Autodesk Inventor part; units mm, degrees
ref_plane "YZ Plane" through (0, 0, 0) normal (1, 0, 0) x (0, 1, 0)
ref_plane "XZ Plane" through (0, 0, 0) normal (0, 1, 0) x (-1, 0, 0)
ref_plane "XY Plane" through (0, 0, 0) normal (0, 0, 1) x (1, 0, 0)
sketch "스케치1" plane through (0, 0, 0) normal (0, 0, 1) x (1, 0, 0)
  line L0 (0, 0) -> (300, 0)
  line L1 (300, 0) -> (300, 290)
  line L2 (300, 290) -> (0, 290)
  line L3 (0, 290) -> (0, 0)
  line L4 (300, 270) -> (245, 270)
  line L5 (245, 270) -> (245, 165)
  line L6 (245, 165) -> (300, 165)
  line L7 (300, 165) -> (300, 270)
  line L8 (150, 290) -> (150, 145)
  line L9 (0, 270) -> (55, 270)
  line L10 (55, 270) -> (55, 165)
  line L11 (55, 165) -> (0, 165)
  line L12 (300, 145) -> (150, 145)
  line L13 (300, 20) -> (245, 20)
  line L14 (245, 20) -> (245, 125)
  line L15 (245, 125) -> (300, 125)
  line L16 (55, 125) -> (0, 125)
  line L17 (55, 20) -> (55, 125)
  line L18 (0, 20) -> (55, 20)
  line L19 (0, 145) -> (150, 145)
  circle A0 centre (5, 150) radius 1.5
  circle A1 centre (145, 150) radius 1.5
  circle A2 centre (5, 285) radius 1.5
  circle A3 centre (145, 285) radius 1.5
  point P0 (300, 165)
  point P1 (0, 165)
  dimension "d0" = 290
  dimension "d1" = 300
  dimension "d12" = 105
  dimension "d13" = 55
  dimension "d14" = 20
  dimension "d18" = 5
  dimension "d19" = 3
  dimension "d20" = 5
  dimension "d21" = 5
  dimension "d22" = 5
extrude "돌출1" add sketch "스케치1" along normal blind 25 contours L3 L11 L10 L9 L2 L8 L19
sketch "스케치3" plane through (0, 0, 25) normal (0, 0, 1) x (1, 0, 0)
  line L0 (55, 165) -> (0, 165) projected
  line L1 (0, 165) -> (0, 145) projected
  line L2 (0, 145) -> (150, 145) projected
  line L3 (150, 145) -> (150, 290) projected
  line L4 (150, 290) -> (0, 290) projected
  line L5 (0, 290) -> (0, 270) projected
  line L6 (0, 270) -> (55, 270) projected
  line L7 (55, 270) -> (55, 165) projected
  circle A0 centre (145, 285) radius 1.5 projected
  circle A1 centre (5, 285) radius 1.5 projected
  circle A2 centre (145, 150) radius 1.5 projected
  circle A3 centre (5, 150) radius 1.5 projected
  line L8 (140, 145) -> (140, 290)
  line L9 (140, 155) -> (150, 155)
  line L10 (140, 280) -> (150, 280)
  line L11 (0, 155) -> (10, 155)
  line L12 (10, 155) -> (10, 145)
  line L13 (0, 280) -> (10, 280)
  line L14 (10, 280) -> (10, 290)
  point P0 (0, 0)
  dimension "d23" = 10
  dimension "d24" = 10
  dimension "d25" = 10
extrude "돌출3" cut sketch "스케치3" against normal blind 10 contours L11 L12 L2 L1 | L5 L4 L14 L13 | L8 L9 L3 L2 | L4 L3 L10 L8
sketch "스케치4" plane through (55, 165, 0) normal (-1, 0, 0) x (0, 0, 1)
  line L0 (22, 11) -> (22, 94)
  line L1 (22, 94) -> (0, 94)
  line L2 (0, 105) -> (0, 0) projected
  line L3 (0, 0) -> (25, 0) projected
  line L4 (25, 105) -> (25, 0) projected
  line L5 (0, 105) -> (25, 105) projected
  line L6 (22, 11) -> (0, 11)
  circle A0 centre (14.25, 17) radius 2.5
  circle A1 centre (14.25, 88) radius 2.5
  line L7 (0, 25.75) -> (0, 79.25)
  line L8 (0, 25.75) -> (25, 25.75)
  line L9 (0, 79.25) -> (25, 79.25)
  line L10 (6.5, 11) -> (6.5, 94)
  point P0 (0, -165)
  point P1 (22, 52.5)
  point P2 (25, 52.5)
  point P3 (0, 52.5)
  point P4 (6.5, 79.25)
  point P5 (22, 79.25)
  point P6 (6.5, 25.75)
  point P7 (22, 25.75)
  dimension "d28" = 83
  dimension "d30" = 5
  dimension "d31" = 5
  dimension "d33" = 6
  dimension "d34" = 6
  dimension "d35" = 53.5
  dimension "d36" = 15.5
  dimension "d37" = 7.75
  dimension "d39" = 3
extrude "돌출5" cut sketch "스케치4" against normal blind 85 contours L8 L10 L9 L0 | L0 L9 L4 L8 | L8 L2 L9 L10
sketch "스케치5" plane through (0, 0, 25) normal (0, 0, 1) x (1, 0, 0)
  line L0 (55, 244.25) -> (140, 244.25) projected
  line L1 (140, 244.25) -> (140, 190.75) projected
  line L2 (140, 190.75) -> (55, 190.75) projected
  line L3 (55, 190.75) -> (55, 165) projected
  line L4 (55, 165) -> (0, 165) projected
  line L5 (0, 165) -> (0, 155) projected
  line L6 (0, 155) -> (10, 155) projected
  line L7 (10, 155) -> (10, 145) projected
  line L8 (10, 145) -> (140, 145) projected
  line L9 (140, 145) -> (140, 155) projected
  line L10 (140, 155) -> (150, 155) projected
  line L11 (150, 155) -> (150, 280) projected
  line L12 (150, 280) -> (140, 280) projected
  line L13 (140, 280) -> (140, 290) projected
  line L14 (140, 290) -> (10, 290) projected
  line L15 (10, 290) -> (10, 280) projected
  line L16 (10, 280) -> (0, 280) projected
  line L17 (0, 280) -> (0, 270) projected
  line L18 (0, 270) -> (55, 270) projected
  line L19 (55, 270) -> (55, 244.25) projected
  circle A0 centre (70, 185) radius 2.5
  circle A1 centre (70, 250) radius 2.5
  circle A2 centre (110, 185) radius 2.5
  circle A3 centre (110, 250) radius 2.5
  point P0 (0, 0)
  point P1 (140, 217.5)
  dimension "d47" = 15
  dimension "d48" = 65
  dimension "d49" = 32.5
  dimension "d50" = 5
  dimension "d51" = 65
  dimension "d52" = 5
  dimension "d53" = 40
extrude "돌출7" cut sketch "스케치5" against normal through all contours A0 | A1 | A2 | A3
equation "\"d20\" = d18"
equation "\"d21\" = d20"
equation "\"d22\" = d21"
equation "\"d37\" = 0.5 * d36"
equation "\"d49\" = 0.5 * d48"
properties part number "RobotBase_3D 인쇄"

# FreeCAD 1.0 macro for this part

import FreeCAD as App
import Part
import Sketcher
from FreeCAD import Vector


def add_polygon(sketch, points):
    """Adds a closed chain of lines whose ends are joined by coincident constraints."""
    first, n = sketch.GeometryCount, len(points)
    for a, b in zip(points, points[1:] + points[:1]):
        sketch.addGeometry(Part.LineSegment(App.Vector(*a, 0), App.Vector(*b, 0)), False)
    for i in range(n):
        sketch.addConstraint(Sketcher.Constraint("Coincident", first + i, 2, first + (i + 1) % n, 1))

doc = App.newDocument("Part")
body = doc.addObject("PartDesign::Body", "Body")

sketch1 = body.newObject("Sketcher::SketchObject", "Sketch")
sketch1.AttachmentSupport = (doc.getObject("XY_Plane"), [""])
sketch1.MapMode = "FlatFace"
add_polygon(sketch1, [(0, 165), (0, 145), (150, 145), (150, 290), (0, 290), (0, 270), (55, 270), (55, 165)])
sketch1.addGeometry(Part.Circle(Vector(5, 150, 0), Vector(0, 0, 1), 1.5), False)
sketch1.addGeometry(Part.Circle(Vector(145, 150, 0), Vector(0, 0, 1), 1.5), False)
sketch1.addGeometry(Part.Circle(Vector(5, 285, 0), Vector(0, 0, 1), 1.5), False)
sketch1.addGeometry(Part.Circle(Vector(145, 285, 0), Vector(0, 0, 1), 1.5), False)
sketch1.addConstraint([
    Sketcher.Constraint("Vertical", 0),
    Sketcher.Constraint("Horizontal", 1),
    Sketcher.Constraint("Vertical", 2),
    Sketcher.Constraint("Horizontal", 3),
    Sketcher.Constraint("Vertical", 4),
    Sketcher.Constraint("Horizontal", 5),
    Sketcher.Constraint("Vertical", 6),
    Sketcher.Constraint("Horizontal", 7),
    Sketcher.Constraint("Equal", 8, 9),
    Sketcher.Constraint("Equal", 9, 10),
    Sketcher.Constraint("Equal", 10, 11),
    Sketcher.Constraint("PointOnObject", 0, 2, -2),
    Sketcher.Constraint("PointOnObject", 3, 2, -2),
    Sketcher.Constraint("Horizontal", 8, 3, 9, 3),
    Sketcher.Constraint("Horizontal", 10, 3, 11, 3),
    Sketcher.Constraint("Vertical", 8, 3, 10, 3),
    Sketcher.Constraint("Vertical", 9, 3, 11, 3),
    Sketcher.Constraint("Equal", 0, 4),
    Sketcher.Constraint("Diameter", 8, 3.0),
    Sketcher.Constraint("DistanceX", 5, 1, 5, 2, 55.0),
    Sketcher.Constraint("DistanceY", 0, 2, 0, 1, 20.0),
    Sketcher.Constraint("DistanceY", 6, 2, 6, 1, 105.0),
    Sketcher.Constraint("DistanceX", -1, 1, 8, 3, 5.0),
    Sketcher.Constraint("DistanceY", -1, 1, 2, 2, 290.0),
    Sketcher.Constraint("DistanceY", 0, 2, 8, 3, 5.0),
    Sketcher.Constraint("DistanceX", 9, 3, 1, 2, 5.0),
    Sketcher.Constraint("DistanceY", 11, 3, 2, 2, 5.0),
    Sketcher.Constraint("DistanceX", 1, 1, 1, 2, 150.0),
])
pad1 = body.newObject("PartDesign::Pad", "Pad")
pad1.Profile = sketch1
pad1.Length = 25

sketch2 = body.newObject("Sketcher::SketchObject", "Sketch001")
sketch2.AttachmentSupport = (doc.getObject("XY_Plane"), [""])
sketch2.MapMode = "FlatFace"
sketch2.AttachmentOffset = App.Placement(Vector(0, 0, 25), App.Rotation())
add_polygon(sketch2, [(10, 155), (0, 155), (0, 145), (10, 145)])
sketch2.addGeometry(Part.Circle(Vector(5, 150, 0), Vector(0, 0, 1), 1.5), False)
add_polygon(sketch2, [(0, 290), (0, 280), (10, 280), (10, 290)])
sketch2.addGeometry(Part.Circle(Vector(5, 285, 0), Vector(0, 0, 1), 1.5), False)
add_polygon(sketch2, [(140, 155), (140, 145), (150, 145), (150, 155)])
sketch2.addGeometry(Part.Circle(Vector(145, 150, 0), Vector(0, 0, 1), 1.5), False)
add_polygon(sketch2, [(150, 290), (140, 290), (140, 280), (150, 280)])
sketch2.addGeometry(Part.Circle(Vector(145, 285, 0), Vector(0, 0, 1), 1.5), False)
sketch2.addConstraint([
    Sketcher.Constraint("Horizontal", 0),
    Sketcher.Constraint("Vertical", 1),
    Sketcher.Constraint("Horizontal", 2),
    Sketcher.Constraint("Vertical", 3),
    Sketcher.Constraint("Vertical", 5),
    Sketcher.Constraint("Horizontal", 6),
    Sketcher.Constraint("Vertical", 7),
    Sketcher.Constraint("Horizontal", 8),
    Sketcher.Constraint("Vertical", 10),
    Sketcher.Constraint("Horizontal", 11),
    Sketcher.Constraint("Vertical", 12),
    Sketcher.Constraint("Horizontal", 13),
    Sketcher.Constraint("Horizontal", 15),
    Sketcher.Constraint("Vertical", 16),
    Sketcher.Constraint("Horizontal", 17),
    Sketcher.Constraint("Vertical", 18),
    Sketcher.Constraint("Equal", 4, 9),
    Sketcher.Constraint("Equal", 9, 14),
    Sketcher.Constraint("Equal", 14, 19),
    Sketcher.Constraint("PointOnObject", 0, 2, -2),
    Sketcher.Constraint("PointOnObject", 5, 2, -2),
    Sketcher.Constraint("Horizontal", 4, 3, 14, 3),
    Sketcher.Constraint("Horizontal", 9, 3, 19, 3),
    Sketcher.Constraint("Horizontal", 2, 2, 10, 2),
    Sketcher.Constraint("Horizontal", 3, 2, 12, 2),
    Sketcher.Constraint("Horizontal", 8, 2, 15, 2),
    Sketcher.Constraint("Horizontal", 6, 2, 16, 2),
    Sketcher.Constraint("Vertical", 4, 3, 9, 3),
    Sketcher.Constraint("Vertical", 14, 3, 19, 3),
    Sketcher.Constraint("Vertical", 3, 2, 6, 2),
    Sketcher.Constraint("Vertical", 13, 2, 15, 2),
    Sketcher.Constraint("Vertical", 12, 2, 17, 2),
    Sketcher.Constraint("Equal", 8, 11),
    Sketcher.Constraint("Equal", 17, 1),
    Sketcher.Constraint("Equal", 3, 5),
    Sketcher.Constraint("DistanceX", 0, 2, 0, 1, 10.0),
    Sketcher.Constraint("Diameter", 4, 3.0),
    Sketcher.Constraint("DistanceX", -1, 1, 4, 3, 5.0),
    Sketcher.Constraint("DistanceY", -1, 1, 4, 3, 150.0),
    Sketcher.Constraint("DistanceY", -1, 1, 9, 3, 285.0),
    Sketcher.Constraint("DistanceX", -1, 1, 14, 3, 145.0),
    Sketcher.Constraint("DistanceY", -1, 1, 0, 2, 155.0),
    Sketcher.Constraint("DistanceY", -1, 1, 5, 2, 280.0),
    Sketcher.Constraint("DistanceX", -1, 1, 10, 2, 140.0),
])
pocket1 = body.newObject("PartDesign::Pocket", "Pocket")
pocket1.Profile = sketch2
pocket1.Length = 10

sketch3 = body.newObject("Sketcher::SketchObject", "Sketch002")
sketch3.AttachmentSupport = (doc.getObject("YZ_Plane"), [""])
sketch3.MapMode = "FlatFace"
sketch3.AttachmentOffset = App.Placement(Vector(0, 0, 55), App.Rotation())
add_polygon(sketch3, [(190.75, 25), (244.25, 25), (244.25, 0), (190.75, 0)])
sketch3.addConstraint([
    Sketcher.Constraint("Horizontal", 0),
    Sketcher.Constraint("Vertical", 1),
    Sketcher.Constraint("Horizontal", 2),
    Sketcher.Constraint("Vertical", 3),
    Sketcher.Constraint("PointOnObject", 1, 2, -1),
    Sketcher.Constraint("DistanceX", 0, 1, 0, 2, 53.5),
    Sketcher.Constraint("DistanceY", 1, 2, 1, 1, 25.0),
    Sketcher.Constraint("DistanceX", -1, 1, 0, 2, 244.25),
])
pocket2 = body.newObject("PartDesign::Pocket", "Pocket001")
pocket2.Profile = sketch3
pocket2.Length = 85
pocket2.Reversed = True

sketch4 = body.newObject("Sketcher::SketchObject", "Sketch003")
sketch4.AttachmentSupport = (doc.getObject("XY_Plane"), [""])
sketch4.MapMode = "FlatFace"
sketch4.AttachmentOffset = App.Placement(Vector(0, 0, 25), App.Rotation())
sketch4.addGeometry([
    Part.Circle(Vector(70, 185, 0), Vector(0, 0, 1), 2.5),
    Part.Circle(Vector(70, 250, 0), Vector(0, 0, 1), 2.5),
    Part.Circle(Vector(110, 185, 0), Vector(0, 0, 1), 2.5),
    Part.Circle(Vector(110, 250, 0), Vector(0, 0, 1), 2.5),
], False)
sketch4.addConstraint([
    Sketcher.Constraint("Equal", 0, 1),
    Sketcher.Constraint("Equal", 1, 2),
    Sketcher.Constraint("Equal", 2, 3),
    Sketcher.Constraint("Horizontal", 0, 3, 2, 3),
    Sketcher.Constraint("Horizontal", 1, 3, 3, 3),
    Sketcher.Constraint("Vertical", 0, 3, 1, 3),
    Sketcher.Constraint("Vertical", 2, 3, 3, 3),
    Sketcher.Constraint("Diameter", 0, 5.0),
    Sketcher.Constraint("DistanceY", 0, 3, 1, 3, 65.0),
    Sketcher.Constraint("DistanceX", 0, 3, 2, 3, 40.0),
    Sketcher.Constraint("DistanceX", -1, 1, 0, 3, 70.0),
    Sketcher.Constraint("DistanceY", -1, 1, 0, 3, 185.0),
])
pocket3 = body.newObject("PartDesign::Pocket", "Pocket002")
pocket3.Profile = sketch4
pocket3.Type = "ThroughAll"

doc.recompute()
